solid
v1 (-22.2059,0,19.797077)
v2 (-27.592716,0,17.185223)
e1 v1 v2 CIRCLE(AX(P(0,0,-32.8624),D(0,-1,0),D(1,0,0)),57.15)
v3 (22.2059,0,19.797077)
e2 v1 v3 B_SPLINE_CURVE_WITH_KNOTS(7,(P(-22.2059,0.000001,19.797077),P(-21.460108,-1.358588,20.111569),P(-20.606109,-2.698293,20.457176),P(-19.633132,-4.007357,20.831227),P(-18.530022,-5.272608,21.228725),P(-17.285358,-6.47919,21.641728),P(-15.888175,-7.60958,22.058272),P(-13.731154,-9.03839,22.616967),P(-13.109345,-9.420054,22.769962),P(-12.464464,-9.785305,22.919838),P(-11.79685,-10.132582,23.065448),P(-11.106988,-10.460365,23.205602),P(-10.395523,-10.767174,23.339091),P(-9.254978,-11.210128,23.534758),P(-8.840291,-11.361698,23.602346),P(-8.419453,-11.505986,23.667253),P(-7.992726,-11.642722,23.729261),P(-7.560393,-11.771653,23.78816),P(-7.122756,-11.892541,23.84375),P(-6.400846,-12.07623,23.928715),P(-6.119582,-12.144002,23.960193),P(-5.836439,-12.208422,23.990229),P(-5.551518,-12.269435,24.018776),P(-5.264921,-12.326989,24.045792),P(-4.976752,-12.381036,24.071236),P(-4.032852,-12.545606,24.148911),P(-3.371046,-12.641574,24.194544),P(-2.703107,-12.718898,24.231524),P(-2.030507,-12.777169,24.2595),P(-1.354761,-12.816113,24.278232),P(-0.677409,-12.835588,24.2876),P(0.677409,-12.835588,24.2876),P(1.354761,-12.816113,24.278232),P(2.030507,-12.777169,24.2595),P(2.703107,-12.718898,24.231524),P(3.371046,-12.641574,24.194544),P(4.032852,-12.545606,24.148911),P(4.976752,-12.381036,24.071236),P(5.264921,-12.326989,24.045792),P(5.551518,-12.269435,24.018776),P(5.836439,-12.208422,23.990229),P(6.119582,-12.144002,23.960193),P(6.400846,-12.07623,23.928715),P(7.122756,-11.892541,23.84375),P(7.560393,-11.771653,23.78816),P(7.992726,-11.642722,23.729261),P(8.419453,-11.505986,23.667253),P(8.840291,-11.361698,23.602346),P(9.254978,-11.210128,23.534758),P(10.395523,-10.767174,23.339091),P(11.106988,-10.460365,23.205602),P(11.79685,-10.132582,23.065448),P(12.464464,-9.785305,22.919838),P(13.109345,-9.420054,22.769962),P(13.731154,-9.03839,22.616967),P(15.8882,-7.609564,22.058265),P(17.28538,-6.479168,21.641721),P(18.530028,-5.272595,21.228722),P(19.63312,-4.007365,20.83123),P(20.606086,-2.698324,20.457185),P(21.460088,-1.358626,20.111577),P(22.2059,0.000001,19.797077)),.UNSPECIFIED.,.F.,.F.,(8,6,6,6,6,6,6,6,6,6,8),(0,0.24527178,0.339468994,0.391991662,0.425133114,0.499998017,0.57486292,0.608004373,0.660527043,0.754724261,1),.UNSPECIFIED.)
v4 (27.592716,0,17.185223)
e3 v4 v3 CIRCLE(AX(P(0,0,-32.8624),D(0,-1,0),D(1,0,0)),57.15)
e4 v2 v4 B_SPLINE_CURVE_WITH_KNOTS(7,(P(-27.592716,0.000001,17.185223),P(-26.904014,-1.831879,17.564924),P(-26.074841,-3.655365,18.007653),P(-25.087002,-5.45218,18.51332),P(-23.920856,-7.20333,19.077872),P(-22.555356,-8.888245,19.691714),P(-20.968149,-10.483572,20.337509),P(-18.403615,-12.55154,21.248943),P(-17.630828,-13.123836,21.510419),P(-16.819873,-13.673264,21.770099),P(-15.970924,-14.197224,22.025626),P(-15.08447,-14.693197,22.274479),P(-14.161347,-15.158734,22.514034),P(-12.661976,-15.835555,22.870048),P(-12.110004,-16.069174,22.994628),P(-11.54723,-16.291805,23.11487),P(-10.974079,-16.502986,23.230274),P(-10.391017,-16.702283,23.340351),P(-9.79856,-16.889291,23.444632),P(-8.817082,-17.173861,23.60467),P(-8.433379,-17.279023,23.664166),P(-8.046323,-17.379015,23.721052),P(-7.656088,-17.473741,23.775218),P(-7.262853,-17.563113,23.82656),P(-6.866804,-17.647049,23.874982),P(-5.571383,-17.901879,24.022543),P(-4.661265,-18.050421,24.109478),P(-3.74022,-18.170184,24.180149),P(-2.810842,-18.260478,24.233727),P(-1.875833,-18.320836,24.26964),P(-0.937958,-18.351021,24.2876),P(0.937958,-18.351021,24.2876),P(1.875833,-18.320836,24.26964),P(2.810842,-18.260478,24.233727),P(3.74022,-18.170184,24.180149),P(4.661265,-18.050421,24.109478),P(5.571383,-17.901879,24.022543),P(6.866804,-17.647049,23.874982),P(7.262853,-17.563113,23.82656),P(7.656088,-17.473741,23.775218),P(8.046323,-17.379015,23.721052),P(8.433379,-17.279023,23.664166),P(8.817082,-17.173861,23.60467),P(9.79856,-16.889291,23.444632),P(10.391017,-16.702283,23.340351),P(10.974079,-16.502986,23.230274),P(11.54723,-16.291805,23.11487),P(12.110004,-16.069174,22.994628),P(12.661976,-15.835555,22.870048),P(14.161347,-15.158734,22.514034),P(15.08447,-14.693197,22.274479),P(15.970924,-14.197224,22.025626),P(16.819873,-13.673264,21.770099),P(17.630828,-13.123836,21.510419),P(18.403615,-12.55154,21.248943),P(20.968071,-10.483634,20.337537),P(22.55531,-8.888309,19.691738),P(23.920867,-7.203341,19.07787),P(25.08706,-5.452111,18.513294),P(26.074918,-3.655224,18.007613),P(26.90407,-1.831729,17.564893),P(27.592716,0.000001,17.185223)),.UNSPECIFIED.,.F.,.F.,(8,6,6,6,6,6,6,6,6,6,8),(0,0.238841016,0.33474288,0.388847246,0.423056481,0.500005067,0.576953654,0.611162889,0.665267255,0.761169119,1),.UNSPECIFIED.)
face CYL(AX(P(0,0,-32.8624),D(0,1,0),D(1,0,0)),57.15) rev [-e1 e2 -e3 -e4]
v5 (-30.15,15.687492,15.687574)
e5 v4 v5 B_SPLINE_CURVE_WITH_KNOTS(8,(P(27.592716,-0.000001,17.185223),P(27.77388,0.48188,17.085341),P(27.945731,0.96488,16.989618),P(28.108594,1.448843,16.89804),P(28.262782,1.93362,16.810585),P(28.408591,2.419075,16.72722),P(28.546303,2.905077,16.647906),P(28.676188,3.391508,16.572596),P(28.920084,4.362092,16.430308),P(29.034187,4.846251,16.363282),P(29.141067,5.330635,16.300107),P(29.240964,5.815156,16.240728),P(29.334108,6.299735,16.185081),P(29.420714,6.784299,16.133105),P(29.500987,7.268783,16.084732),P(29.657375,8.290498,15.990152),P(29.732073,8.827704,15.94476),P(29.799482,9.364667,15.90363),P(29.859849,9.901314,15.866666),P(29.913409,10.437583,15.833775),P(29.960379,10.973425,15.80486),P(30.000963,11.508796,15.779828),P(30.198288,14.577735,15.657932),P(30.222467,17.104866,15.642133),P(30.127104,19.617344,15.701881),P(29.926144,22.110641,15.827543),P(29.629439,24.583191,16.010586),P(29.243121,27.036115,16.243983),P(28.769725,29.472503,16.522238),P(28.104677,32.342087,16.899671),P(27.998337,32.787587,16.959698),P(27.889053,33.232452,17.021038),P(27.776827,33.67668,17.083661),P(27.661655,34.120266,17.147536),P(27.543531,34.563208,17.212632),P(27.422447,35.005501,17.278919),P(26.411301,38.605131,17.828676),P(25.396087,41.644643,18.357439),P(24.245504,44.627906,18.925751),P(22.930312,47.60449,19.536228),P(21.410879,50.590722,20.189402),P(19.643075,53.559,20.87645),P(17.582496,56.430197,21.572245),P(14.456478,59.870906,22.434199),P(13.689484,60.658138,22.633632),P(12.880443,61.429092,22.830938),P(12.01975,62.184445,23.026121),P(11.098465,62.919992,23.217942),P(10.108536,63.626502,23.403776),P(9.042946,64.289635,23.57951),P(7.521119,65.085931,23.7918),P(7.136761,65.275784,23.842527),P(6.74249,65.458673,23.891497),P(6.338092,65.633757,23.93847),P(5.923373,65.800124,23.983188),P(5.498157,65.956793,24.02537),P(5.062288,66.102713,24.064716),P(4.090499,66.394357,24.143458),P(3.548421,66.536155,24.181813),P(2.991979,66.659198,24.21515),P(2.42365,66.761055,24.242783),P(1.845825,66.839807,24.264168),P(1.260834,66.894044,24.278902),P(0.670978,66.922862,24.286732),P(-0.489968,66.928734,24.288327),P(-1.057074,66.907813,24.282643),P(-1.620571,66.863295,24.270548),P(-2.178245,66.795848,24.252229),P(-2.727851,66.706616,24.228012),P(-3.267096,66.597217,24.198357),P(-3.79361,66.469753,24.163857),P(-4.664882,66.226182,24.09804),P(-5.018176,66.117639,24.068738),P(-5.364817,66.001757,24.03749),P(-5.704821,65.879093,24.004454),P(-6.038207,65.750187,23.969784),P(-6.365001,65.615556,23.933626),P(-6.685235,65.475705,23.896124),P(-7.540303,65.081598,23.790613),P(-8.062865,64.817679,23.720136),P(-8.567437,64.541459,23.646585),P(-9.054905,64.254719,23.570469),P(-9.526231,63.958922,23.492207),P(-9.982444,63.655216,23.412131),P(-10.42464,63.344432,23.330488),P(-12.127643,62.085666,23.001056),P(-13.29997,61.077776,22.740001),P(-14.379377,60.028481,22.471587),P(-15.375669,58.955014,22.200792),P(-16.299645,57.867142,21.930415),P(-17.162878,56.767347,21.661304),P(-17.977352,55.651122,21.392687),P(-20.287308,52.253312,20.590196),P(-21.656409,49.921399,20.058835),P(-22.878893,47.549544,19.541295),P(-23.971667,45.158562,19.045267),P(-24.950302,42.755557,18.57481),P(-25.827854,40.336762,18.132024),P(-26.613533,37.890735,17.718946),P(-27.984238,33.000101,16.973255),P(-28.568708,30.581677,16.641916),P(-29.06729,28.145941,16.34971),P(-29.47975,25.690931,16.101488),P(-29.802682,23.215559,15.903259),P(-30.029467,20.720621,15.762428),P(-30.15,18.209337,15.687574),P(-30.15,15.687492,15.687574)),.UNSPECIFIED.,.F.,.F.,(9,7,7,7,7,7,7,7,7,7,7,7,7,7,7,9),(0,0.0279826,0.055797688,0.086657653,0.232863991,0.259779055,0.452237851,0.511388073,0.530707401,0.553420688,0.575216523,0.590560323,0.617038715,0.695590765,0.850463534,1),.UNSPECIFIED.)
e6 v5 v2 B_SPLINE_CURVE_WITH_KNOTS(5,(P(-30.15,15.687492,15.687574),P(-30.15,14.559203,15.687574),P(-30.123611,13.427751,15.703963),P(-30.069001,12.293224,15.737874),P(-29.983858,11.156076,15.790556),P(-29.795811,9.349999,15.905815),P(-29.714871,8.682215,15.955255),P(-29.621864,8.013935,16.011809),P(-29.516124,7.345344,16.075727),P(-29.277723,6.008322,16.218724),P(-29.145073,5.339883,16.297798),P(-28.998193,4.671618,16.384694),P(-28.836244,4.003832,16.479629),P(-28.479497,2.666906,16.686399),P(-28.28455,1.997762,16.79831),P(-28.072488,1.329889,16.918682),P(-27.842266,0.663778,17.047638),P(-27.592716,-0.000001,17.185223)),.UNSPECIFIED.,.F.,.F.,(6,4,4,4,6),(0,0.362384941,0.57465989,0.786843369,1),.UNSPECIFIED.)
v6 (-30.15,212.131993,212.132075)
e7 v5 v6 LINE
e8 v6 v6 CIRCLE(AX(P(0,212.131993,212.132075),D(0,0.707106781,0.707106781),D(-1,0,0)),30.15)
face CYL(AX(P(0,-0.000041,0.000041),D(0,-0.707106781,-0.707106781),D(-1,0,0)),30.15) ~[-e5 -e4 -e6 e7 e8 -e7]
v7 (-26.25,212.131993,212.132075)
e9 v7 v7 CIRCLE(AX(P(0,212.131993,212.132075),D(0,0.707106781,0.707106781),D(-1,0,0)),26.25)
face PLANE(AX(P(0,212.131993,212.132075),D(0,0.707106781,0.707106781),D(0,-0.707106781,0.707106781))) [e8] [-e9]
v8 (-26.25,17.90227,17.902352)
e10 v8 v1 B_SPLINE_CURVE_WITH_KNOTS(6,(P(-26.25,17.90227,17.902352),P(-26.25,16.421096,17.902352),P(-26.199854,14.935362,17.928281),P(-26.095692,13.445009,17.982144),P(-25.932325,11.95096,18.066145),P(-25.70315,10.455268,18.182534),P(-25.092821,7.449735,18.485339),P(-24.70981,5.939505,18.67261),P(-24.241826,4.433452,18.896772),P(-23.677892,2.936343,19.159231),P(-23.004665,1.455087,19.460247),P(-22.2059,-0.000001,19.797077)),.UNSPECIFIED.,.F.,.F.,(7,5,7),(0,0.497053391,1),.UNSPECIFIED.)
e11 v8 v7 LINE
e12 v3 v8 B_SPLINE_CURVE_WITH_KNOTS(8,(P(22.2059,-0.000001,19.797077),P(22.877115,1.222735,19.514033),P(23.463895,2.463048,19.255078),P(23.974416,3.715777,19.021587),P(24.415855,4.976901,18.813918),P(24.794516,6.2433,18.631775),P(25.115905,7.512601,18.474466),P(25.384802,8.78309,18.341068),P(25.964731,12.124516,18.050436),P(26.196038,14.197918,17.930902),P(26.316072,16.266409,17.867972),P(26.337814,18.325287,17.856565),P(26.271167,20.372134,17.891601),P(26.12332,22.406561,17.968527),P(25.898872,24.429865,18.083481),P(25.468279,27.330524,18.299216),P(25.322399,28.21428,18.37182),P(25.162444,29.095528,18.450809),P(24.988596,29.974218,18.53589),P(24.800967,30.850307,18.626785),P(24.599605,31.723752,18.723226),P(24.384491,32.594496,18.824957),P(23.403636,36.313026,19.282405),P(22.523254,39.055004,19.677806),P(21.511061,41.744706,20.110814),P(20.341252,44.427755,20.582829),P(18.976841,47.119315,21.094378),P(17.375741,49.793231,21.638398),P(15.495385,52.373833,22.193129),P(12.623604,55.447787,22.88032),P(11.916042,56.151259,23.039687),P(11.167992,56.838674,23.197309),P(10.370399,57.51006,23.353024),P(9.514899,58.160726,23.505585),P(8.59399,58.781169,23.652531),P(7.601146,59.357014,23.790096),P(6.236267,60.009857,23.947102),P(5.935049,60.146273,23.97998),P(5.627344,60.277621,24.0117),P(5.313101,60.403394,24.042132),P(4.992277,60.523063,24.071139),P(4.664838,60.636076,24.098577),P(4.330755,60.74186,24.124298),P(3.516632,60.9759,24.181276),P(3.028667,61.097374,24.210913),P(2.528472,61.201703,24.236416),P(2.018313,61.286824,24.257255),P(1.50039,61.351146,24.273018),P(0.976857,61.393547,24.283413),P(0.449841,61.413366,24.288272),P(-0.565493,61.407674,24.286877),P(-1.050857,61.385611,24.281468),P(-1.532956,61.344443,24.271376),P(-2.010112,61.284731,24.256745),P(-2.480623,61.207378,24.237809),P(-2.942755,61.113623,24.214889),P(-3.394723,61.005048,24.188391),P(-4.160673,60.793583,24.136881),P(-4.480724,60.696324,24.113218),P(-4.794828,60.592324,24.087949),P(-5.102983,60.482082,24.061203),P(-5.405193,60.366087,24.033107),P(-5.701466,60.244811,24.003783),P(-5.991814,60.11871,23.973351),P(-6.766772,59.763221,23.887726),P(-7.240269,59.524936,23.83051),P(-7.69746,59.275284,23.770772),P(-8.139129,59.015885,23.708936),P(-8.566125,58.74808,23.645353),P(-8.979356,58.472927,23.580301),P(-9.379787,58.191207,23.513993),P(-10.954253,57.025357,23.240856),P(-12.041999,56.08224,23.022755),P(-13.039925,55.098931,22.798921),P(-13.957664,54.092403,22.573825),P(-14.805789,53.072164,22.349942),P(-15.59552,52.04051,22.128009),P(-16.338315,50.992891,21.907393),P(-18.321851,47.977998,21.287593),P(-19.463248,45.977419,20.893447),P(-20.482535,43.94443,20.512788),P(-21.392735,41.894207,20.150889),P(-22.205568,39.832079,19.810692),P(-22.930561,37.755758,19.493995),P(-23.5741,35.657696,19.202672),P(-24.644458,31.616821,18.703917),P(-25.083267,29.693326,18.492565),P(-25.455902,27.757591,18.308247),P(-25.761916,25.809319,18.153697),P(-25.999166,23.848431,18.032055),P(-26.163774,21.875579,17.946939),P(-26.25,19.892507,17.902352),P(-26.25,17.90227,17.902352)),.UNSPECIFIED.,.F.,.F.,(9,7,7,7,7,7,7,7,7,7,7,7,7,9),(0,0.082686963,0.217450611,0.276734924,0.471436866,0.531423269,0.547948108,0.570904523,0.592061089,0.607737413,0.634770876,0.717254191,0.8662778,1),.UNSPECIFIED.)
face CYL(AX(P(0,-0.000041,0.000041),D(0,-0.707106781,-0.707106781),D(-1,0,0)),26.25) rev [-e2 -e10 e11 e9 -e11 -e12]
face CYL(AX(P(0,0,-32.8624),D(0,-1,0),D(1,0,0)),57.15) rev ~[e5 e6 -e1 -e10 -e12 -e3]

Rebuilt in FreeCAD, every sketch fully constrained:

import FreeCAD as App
import Part
import Sketcher

doc = App.newDocument("Part")
body = doc.addObject("PartDesign::Body", "Body")

# Sketch on an angled plane
sketch1 = doc.addObject("Sketcher::SketchObject", "Sketch")
body.addObject(sketch1)
sketch1.Placement = App.Placement(App.Vector(3.0941, -2.1879, 2.1879), App.Rotation(App.Vector(-1, 0, 0), App.Vector(0, -0.707106781, 0.707106781), App.Vector(0, 0.707106781, 0.707106781), "ZXY"))
sketch1.addGeometry(Part.Circle(App.Vector(3.0941, -3.0941, 0), App.Vector(0, 0, 1), 30.15), False)
sketch1.addGeometry(Part.Circle(App.Vector(3.0941, -3.0941, 0), App.Vector(0, 0, 1), 26.25), False)
sketch1.addConstraint(Sketcher.Constraint("Coincident", 1, 3, 0, 3))
sketch1.addConstraint(Sketcher.Constraint("Diameter", 0, 60.3))
sketch1.addConstraint(Sketcher.Constraint("Diameter", 1, 52.5))
sketch1.addConstraint(Sketcher.Constraint("DistanceX", -1, 1, 0, 3, 3.094))
sketch1.addConstraint(Sketcher.Constraint("DistanceY", 0, 3, -1, 1, 3.094))
pad1 = doc.addObject("PartDesign::Pad", "Pad")
body.addObject(pad1)
pad1.Profile = sketch1
pad1.Length = 300

# Sketch on XZ plane
sketch2 = doc.addObject("Sketcher::SketchObject", "Sketch001")
body.addObject(sketch2)
sketch2.AttachmentSupport = (doc.XZ_Plane, [""])
sketch2.MapMode = "FlatFace"
sketch2.addGeometry(Part.Circle(App.Vector(0, -32.8624, 0), App.Vector(0, 0, 1), 57.15), False)
sketch2.addConstraint(Sketcher.Constraint("PointOnObject", 0, 3, -2))
sketch2.addConstraint(Sketcher.Constraint("Diameter", 0, 114.3))
sketch2.addConstraint(Sketcher.Constraint("DistanceY", 0, 3, -1, 1, 32.8624))
pocket1 = doc.addObject("PartDesign::Pocket", "Pocket")
body.addObject(pocket1)
pocket1.Profile = sketch2
pocket1.Length = 300
pocket1.Midplane = True

doc.recompute()
